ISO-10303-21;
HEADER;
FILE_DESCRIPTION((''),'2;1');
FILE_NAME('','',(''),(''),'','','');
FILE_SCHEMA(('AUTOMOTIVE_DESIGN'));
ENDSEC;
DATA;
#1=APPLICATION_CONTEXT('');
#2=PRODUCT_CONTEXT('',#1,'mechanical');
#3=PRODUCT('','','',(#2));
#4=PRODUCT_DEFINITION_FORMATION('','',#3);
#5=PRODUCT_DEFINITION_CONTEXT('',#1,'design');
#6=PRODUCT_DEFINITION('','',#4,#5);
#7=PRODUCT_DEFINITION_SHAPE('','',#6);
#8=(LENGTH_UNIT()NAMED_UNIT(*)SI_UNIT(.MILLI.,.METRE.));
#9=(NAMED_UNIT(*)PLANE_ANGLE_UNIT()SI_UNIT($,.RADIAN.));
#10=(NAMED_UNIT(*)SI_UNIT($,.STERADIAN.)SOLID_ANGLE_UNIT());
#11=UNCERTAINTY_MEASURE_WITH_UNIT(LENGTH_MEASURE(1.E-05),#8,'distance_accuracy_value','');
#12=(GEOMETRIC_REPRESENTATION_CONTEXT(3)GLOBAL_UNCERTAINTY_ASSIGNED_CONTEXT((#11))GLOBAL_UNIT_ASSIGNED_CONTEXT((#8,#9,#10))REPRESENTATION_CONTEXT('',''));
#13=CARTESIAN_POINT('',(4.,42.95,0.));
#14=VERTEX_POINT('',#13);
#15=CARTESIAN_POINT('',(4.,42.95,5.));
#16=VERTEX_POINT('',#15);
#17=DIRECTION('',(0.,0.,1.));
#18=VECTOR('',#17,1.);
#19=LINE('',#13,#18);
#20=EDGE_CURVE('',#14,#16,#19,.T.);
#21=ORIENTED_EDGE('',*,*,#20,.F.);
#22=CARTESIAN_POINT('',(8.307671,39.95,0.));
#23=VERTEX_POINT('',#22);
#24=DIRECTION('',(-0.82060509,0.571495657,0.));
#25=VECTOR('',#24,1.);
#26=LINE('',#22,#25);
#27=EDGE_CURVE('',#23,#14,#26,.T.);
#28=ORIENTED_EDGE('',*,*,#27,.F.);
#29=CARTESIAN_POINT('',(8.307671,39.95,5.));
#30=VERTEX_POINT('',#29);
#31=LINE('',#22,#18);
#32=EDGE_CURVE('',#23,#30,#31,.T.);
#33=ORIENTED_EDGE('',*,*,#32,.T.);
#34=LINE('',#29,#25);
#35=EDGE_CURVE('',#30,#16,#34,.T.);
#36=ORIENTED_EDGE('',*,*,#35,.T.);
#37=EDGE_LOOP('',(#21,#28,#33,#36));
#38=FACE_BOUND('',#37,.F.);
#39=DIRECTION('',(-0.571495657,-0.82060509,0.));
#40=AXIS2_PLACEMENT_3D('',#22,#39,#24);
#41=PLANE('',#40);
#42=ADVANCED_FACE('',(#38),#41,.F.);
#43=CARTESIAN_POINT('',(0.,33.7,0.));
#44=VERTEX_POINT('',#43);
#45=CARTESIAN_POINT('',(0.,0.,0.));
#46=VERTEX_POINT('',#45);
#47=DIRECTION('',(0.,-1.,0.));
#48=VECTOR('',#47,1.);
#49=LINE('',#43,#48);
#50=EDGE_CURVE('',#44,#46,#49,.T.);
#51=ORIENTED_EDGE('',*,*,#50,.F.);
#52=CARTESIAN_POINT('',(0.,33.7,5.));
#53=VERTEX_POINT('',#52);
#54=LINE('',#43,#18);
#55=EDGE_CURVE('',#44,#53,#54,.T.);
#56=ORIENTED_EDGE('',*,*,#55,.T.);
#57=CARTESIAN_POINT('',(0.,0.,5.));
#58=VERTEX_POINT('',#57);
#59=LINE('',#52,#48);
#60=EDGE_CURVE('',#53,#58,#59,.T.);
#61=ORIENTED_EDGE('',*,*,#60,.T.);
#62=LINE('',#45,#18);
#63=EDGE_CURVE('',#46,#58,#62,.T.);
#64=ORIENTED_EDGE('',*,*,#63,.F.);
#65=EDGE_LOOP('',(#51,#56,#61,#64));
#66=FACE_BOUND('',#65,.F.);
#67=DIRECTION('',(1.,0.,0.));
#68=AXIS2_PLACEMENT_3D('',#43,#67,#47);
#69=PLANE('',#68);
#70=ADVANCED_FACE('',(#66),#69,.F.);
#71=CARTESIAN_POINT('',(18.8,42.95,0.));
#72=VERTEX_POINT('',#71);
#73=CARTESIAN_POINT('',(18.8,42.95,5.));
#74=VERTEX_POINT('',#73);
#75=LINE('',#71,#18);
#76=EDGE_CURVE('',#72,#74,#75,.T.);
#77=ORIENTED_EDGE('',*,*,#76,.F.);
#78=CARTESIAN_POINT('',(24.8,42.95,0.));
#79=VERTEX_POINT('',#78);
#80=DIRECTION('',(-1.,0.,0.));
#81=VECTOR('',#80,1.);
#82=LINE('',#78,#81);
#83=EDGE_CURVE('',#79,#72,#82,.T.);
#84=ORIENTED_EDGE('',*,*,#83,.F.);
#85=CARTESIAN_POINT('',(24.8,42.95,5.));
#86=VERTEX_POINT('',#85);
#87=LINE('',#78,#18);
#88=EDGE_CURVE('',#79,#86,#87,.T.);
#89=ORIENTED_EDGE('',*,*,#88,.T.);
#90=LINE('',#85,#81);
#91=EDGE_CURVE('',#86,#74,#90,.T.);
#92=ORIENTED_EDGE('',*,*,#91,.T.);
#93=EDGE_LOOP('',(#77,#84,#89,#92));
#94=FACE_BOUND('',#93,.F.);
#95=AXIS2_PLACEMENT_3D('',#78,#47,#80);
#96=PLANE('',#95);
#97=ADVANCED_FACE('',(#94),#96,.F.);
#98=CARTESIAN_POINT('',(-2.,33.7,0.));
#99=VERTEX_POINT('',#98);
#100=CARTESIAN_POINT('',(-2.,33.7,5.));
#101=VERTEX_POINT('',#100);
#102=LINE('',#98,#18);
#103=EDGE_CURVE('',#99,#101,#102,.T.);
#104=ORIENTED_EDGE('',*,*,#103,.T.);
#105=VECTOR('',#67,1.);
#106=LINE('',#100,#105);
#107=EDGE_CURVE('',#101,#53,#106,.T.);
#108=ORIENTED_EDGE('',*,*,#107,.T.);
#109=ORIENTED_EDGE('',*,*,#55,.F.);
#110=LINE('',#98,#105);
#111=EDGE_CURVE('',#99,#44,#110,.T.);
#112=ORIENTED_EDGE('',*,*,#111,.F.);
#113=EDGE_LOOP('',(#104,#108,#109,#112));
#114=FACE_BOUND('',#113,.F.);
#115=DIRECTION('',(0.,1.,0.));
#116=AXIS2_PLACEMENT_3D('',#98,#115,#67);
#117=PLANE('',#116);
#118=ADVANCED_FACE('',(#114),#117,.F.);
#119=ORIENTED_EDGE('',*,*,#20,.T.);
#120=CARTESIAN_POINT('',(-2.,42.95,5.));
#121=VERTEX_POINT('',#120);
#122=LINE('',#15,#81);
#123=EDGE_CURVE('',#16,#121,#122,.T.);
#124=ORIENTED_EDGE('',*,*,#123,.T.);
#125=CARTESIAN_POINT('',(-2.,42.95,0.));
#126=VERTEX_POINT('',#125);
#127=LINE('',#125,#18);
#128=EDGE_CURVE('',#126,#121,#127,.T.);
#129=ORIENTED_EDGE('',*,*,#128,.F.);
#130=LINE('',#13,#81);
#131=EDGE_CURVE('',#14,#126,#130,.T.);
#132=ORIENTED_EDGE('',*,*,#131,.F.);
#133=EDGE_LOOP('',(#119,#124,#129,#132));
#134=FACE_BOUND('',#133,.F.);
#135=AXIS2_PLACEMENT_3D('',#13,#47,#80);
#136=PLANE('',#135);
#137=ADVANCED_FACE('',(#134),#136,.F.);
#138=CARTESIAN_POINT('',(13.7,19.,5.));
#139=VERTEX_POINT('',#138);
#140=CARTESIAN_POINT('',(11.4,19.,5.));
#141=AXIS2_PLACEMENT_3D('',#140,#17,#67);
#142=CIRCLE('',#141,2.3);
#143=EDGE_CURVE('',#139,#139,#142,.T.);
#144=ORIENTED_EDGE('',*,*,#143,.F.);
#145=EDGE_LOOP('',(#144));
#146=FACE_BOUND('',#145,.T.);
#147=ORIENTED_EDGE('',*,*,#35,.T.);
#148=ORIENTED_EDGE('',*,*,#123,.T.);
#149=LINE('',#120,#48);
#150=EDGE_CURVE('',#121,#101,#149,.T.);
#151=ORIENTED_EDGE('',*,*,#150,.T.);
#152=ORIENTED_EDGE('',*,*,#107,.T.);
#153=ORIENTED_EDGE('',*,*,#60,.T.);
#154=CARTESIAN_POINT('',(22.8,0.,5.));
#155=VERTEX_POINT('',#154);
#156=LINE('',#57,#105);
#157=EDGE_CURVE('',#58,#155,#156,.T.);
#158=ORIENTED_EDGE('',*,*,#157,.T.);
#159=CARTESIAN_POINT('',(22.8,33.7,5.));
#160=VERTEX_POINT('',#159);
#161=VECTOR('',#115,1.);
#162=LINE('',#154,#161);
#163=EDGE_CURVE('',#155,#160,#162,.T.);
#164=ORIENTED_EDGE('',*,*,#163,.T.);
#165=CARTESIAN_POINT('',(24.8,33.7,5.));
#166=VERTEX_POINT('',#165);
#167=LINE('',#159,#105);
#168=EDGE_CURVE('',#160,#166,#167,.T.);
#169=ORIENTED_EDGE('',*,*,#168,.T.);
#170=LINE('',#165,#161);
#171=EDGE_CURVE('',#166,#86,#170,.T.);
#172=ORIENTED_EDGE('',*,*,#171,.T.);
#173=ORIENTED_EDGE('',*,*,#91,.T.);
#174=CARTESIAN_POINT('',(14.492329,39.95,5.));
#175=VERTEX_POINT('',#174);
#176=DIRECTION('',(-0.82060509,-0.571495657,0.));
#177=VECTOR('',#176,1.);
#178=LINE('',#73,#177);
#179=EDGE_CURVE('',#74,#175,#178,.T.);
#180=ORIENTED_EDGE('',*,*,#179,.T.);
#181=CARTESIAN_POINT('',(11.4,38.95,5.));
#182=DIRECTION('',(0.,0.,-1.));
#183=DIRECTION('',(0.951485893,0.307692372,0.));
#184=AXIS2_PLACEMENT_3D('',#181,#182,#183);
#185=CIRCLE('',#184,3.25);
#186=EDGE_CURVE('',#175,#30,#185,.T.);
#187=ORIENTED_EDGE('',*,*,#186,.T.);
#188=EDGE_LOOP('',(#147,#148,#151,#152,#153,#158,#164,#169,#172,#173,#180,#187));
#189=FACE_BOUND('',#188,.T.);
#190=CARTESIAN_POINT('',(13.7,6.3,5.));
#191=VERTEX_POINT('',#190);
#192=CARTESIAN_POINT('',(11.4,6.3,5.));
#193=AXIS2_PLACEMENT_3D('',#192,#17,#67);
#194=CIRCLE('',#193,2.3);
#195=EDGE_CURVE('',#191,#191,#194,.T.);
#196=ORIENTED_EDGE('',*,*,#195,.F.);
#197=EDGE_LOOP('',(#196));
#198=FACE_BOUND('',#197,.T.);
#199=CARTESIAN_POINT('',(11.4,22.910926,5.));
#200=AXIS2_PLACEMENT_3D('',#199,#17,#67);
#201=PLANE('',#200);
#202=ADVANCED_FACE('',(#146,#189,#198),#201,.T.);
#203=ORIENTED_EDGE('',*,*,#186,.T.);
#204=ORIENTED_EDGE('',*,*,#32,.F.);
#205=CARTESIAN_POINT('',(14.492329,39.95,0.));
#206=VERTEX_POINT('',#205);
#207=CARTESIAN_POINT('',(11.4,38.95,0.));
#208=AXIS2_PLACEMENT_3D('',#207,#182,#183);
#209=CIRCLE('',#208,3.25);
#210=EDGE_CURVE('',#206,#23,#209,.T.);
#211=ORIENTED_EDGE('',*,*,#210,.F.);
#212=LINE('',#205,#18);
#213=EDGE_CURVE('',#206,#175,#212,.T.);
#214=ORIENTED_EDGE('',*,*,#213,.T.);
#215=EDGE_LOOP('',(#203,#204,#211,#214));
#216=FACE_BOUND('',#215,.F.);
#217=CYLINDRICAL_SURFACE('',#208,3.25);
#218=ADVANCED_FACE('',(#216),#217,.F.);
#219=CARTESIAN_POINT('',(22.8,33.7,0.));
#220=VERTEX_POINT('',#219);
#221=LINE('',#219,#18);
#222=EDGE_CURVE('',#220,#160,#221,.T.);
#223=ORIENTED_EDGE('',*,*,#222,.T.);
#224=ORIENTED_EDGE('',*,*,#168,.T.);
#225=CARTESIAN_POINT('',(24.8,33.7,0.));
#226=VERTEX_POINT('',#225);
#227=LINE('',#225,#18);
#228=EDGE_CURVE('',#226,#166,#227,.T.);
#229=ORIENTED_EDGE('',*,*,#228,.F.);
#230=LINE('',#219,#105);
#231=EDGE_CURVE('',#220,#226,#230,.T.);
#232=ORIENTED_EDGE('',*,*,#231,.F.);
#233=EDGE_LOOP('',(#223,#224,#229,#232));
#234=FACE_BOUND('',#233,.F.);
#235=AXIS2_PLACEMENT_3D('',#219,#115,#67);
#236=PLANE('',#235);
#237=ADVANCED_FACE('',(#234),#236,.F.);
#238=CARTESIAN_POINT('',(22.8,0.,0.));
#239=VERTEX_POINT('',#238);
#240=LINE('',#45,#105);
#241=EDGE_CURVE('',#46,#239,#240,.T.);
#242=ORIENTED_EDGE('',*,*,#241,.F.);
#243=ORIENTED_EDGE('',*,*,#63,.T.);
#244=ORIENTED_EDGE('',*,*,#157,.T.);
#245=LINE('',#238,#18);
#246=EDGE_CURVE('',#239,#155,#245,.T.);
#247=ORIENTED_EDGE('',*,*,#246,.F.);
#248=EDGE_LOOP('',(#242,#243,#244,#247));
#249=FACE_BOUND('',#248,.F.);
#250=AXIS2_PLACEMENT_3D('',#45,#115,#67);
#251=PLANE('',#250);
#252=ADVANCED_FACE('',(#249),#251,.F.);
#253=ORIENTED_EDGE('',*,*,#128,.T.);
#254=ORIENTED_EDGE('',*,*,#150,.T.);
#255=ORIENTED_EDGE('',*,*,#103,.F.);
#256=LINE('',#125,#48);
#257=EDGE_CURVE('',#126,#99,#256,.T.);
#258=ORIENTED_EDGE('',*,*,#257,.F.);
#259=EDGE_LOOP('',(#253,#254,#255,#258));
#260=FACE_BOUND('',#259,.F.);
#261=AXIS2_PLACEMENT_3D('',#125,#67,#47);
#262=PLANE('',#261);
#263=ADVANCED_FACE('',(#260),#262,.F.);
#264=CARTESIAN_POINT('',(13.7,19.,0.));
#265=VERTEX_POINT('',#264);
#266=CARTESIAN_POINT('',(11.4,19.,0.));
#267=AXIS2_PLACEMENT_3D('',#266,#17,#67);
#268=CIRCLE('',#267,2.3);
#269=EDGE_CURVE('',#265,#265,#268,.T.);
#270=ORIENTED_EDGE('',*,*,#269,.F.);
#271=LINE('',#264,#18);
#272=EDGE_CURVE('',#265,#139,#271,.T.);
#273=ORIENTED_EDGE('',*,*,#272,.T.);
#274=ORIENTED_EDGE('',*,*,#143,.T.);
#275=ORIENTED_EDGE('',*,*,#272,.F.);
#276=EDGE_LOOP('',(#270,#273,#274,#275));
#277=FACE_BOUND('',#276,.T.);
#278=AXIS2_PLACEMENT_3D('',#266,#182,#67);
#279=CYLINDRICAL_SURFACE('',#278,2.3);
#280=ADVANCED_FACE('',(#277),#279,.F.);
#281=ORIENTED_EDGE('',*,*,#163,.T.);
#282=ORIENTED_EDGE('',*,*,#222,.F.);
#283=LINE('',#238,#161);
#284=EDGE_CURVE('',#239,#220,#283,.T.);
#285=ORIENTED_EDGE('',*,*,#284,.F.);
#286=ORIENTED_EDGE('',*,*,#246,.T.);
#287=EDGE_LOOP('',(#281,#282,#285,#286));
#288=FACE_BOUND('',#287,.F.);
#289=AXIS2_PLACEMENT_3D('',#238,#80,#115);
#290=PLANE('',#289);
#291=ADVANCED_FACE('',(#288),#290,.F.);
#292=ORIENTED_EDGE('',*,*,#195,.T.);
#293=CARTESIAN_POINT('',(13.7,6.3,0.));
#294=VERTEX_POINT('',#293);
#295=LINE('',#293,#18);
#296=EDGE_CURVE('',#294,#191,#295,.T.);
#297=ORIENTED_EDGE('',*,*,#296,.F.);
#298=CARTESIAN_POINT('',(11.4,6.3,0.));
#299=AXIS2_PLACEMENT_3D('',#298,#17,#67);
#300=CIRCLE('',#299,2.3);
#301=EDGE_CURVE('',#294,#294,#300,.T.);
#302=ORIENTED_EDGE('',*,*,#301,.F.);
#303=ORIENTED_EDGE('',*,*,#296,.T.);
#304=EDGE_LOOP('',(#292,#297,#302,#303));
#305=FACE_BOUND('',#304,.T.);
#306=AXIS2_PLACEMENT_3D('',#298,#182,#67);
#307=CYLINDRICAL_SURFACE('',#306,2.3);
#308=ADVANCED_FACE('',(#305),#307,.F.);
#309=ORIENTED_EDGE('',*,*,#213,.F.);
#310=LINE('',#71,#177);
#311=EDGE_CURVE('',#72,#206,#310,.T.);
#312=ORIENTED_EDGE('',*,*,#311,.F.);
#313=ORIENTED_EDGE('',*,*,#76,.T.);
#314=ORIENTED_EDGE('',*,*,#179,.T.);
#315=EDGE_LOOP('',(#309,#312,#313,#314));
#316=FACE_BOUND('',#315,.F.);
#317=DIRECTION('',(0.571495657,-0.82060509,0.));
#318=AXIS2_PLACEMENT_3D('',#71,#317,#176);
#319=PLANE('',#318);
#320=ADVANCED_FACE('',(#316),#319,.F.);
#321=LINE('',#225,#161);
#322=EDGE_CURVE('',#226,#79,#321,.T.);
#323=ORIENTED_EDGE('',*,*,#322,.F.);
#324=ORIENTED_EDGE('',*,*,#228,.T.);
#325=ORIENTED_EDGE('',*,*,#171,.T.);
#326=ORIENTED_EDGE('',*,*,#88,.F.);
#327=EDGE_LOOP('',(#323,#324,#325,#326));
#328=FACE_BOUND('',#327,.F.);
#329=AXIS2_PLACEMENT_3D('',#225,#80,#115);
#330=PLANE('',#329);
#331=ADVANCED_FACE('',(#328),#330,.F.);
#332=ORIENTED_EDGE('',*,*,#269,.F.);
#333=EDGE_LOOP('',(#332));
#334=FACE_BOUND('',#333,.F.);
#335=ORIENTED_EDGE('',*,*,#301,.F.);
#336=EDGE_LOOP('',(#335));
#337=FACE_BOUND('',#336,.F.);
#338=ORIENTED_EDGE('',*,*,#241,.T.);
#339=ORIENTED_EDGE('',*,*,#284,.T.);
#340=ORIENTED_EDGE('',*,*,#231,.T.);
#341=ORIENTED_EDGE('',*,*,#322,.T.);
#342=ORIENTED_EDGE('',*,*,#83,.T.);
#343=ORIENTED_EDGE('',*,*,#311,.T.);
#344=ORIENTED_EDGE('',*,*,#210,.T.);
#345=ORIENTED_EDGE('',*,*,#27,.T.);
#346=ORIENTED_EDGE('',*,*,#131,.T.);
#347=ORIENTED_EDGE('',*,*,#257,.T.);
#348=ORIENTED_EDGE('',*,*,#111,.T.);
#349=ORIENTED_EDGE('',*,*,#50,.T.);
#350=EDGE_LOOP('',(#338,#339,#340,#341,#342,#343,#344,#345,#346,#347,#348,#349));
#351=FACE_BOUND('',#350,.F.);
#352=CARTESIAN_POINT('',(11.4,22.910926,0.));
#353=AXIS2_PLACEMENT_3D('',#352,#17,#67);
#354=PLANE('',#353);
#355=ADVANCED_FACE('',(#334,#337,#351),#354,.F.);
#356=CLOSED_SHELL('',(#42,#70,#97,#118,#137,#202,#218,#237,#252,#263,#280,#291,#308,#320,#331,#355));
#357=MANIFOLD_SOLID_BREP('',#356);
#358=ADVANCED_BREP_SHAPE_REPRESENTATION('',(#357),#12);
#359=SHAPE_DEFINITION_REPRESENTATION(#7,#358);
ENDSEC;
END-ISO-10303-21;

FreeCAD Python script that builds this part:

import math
import FreeCAD as App
import Part
import Sketcher

V = App.Vector
Q = App.Units.Quantity

doc = App.newDocument("Part")
params = doc.addObject("Spreadsheet::Sheet", "Params")
for row, (alias, value) in enumerate([
    ("sketch1_diameter", "4.6 mm"),
    ("sketch1_width", "6 mm"),
    ("sketch1_width2", "2 mm"),
    ("sketch1_radius", "3.25 mm"),
    ("sketch1_width3", "22.8 mm"),
    ("pad1_length", "5 mm"),
], start=1):
    params.set(f"A{row}", alias)
    params.set(f"B{row}", "=" + value)
    params.setAlias(f"B{row}", alias)

body = doc.addObject("PartDesign::Body", "Body")

sketch1 = body.newObject("Sketcher::SketchObject", "Sketch")
sketch1.AttachmentSupport = (doc.getObject("XY_Plane"), [""])
sketch1.MapMode = "FlatFace"
sketch1.addGeometry(Part.LineSegment(V(4, 42.95, 0), V(-2, 42.95, 0)), False)
sketch1.addGeometry(Part.LineSegment(V(-2, 42.95, 0), V(-2, 33.7, 0)), False)
sketch1.addGeometry(Part.LineSegment(V(-2, 33.7, 0), V(0, 33.7, 0)), False)
sketch1.addGeometry(Part.LineSegment(V(0, 33.7, 0), V(0, 0, 0)), False)
sketch1.addGeometry(Part.LineSegment(V(0, 0, 0), V(22.8, 0, 0)), False)
sketch1.addGeometry(Part.LineSegment(V(22.8, 0, 0), V(22.8, 33.7, 0)), False)
sketch1.addGeometry(Part.LineSegment(V(22.8, 33.7, 0), V(24.8, 33.7, 0)), False)
sketch1.addGeometry(Part.LineSegment(V(24.8, 33.7, 0), V(24.8, 42.95, 0)), False)
sketch1.addGeometry(Part.LineSegment(V(24.8, 42.95, 0), V(18.8, 42.95, 0)), False)
sketch1.addGeometry(Part.LineSegment(V(18.8, 42.95, 0), V(14.492329, 39.95, 0)), False)
sketch1.addGeometry(Part.ArcOfCircle(Part.Circle(V(11.4, 38.95, 0), V(0, 0, 1), 3.25), math.radians(162.079783), math.radians(377.920217)), False)
sketch1.addGeometry(Part.LineSegment(V(8.307671, 39.95, 0), V(4, 42.95, 0)), False)
sketch1.addGeometry(Part.Circle(V(11.4, 6.3, 0), V(0, 0, 1), 2.3), False)
sketch1.addGeometry(Part.Circle(V(11.4, 19, 0), V(0, 0, 1), 2.3), False)
sketch1.addConstraint(Sketcher.Constraint("Coincident", 0, 2, 1, 1))
sketch1.addConstraint(Sketcher.Constraint("Coincident", 1, 2, 2, 1))
sketch1.addConstraint(Sketcher.Constraint("Coincident", 2, 2, 3, 1))
sketch1.addConstraint(Sketcher.Constraint("Coincident", 3, 2, 4, 1))
sketch1.addConstraint(Sketcher.Constraint("Coincident", 4, 2, 5, 1))
sketch1.addConstraint(Sketcher.Constraint("Coincident", 5, 2, 6, 1))
sketch1.addConstraint(Sketcher.Constraint("Coincident", 6, 2, 7, 1))
sketch1.addConstraint(Sketcher.Constraint("Coincident", 7, 2, 8, 1))
sketch1.addConstraint(Sketcher.Constraint("Coincident", 8, 2, 9, 1))
sketch1.addConstraint(Sketcher.Constraint("Coincident", 9, 2, 10, 2))
sketch1.addConstraint(Sketcher.Constraint("Coincident", 10, 1, 11, 1))
sketch1.addConstraint(Sketcher.Constraint("Coincident", 11, 2, 0, 1))
sketch1.addConstraint(Sketcher.Constraint("Horizontal", 0))
sketch1.addConstraint(Sketcher.Constraint("Vertical", 1))
sketch1.addConstraint(Sketcher.Constraint("Horizontal", 2))
sketch1.addConstraint(Sketcher.Constraint("Vertical", 3))
sketch1.addConstraint(Sketcher.Constraint("Horizontal", 4))
sketch1.addConstraint(Sketcher.Constraint("Vertical", 5))
sketch1.addConstraint(Sketcher.Constraint("Horizontal", 6))
sketch1.addConstraint(Sketcher.Constraint("Vertical", 7))
sketch1.addConstraint(Sketcher.Constraint("Horizontal", 8))
sketch1.addConstraint(Sketcher.Constraint("Coincident", 3, 2, -1, 1))
sketch1.addConstraint(Sketcher.Constraint("Equal", 12, 13))
sketch1.addConstraint(Sketcher.Constraint("Horizontal", 2, 2, 5, 2))
sketch1.addConstraint(Sketcher.Constraint("Horizontal", 0, 2, 7, 2))
sketch1.addConstraint(Sketcher.Constraint("Horizontal", 9, 2, 10, 1))
sketch1.addConstraint(Sketcher.Constraint("Vertical", 10, 3, 12, 3))
sketch1.addConstraint(Sketcher.Constraint("Vertical", 12, 3, 13, 3))
sketch1.addConstraint(Sketcher.Constraint("Equal", 2, 6))
sketch1.addConstraint(Sketcher.Constraint("Equal", 0, 8))
sketch1.addConstraint(Sketcher.Constraint("Equal", 9, 11))
sketch1.addConstraint(Sketcher.Constraint("Diameter", 12, Q("4.6 mm")))
sketch1.addConstraint(Sketcher.Constraint("DistanceX", 0, 2, 0, 1, Q("6 mm")))
sketch1.addConstraint(Sketcher.Constraint("DistanceX", 2, 1, 2, 2, Q("2 mm")))
sketch1.addConstraint(Sketcher.Constraint("Radius", 10, Q("3.25 mm")))
sketch1.addConstraint(Sketcher.Constraint("DistanceX", 4, 1, 4, 2, Q("22.8 mm")))
sketch1.addConstraint(Sketcher.Constraint("DistanceY", 3, 2, 3, 1, Q("33.7 mm")))
sketch1.addConstraint(Sketcher.Constraint("DistanceY", -1, 1, 13, 3, Q("19 mm")))
sketch1.addConstraint(Sketcher.Constraint("DistanceY", 10, 3, 0, 2, Q("4 mm")))
sketch1.addConstraint(Sketcher.Constraint("DistanceY", 10, 3, 9, 2, Q("1 mm")))
sketch1.addConstraint(Sketcher.Constraint("DistanceY", 1, 2, 1, 1, Q("9.25 mm")))
sketch1.addConstraint(Sketcher.Constraint("DistanceY", -1, 1, 12, 3, Q("6.3 mm")))
sketch1.setExpression("Constraints[31]", "Params.sketch1_diameter")
sketch1.setExpression("Constraints[32]", "Params.sketch1_width")
sketch1.setExpression("Constraints[33]", "Params.sketch1_width2")
sketch1.setExpression("Constraints[34]", "Params.sketch1_radius")
sketch1.setExpression("Constraints[35]", "Params.sketch1_width3")
pad1 = body.newObject("PartDesign::Pad", "Pad")
pad1.Profile = sketch1
pad1.setExpression("Length", "Params.pad1_length")

doc.recompute()
